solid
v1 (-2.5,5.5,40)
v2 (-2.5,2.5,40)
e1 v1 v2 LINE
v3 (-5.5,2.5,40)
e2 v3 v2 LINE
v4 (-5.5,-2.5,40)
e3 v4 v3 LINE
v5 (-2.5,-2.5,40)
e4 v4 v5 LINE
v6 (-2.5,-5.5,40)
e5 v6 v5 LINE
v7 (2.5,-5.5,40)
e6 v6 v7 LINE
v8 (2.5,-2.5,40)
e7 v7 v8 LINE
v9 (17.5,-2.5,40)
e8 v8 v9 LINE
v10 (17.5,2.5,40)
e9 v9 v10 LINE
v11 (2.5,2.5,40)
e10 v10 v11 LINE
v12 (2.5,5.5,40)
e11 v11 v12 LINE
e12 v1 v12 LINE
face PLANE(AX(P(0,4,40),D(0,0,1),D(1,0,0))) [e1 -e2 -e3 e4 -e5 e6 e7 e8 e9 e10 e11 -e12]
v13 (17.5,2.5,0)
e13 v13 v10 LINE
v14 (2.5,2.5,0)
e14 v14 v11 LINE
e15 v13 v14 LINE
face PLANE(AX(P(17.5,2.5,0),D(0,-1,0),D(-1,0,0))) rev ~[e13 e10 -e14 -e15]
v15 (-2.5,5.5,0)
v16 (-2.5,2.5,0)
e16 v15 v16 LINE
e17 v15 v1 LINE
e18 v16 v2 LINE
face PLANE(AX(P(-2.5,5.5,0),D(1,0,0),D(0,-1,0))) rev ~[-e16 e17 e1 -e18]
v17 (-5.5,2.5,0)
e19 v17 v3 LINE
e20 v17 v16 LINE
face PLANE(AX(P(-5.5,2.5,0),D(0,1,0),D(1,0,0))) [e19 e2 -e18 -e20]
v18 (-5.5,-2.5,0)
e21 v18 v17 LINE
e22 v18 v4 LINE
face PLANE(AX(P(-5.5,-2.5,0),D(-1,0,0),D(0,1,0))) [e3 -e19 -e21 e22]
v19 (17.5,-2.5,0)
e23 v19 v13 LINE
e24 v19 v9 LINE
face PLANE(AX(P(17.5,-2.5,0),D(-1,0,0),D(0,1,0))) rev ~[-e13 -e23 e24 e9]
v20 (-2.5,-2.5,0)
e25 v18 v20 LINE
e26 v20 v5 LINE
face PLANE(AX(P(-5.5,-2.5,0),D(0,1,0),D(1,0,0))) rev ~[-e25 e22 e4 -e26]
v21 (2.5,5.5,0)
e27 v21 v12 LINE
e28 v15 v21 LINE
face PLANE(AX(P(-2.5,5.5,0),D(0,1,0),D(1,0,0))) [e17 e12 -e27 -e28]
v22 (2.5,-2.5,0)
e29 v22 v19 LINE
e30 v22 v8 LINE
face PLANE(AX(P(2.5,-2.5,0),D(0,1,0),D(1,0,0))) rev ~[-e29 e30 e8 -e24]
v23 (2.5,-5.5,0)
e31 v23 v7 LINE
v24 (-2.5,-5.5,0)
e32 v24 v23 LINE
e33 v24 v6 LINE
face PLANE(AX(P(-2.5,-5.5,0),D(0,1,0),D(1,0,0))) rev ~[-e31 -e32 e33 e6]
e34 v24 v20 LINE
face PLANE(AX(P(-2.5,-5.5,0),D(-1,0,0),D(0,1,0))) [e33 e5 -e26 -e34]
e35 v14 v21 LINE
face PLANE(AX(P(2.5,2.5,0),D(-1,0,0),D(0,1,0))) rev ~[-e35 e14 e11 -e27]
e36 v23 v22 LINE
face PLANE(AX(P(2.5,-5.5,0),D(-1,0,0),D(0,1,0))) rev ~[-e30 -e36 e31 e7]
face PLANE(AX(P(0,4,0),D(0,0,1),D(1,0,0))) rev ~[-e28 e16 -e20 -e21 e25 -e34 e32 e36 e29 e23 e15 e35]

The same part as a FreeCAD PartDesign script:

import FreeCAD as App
import Part
import Sketcher
from FreeCAD import Vector

doc = App.newDocument("Part")
body = doc.addObject("PartDesign::Body", "Body")

sketch1 = doc.addObject("Sketcher::SketchObject", "Sketch")
body.addObject(sketch1)
sketch1.AttachmentSupport = (doc.XY_Plane, [""])
sketch1.MapMode = "FlatFace"
sketch1.addGeometry([
    Part.LineSegment(Vector(-2.5, 5.5, 0), Vector(-2.5, 2.5, 0)),
    Part.LineSegment(Vector(-2.5, 2.5, 0), Vector(-5.5, 2.5, 0)),
    Part.LineSegment(Vector(-5.5, 2.5, 0), Vector(-5.5, -2.5, 0)),
    Part.LineSegment(Vector(-5.5, -2.5, 0), Vector(-2.5, -2.5, 0)),
    Part.LineSegment(Vector(-2.5, -2.5, 0), Vector(-2.5, -5.5, 0)),
    Part.LineSegment(Vector(-2.5, -5.5, 0), Vector(2.5, -5.5, 0)),
    Part.LineSegment(Vector(2.5, -5.5, 0), Vector(2.5, -2.5, 0)),
    Part.LineSegment(Vector(2.5, -2.5, 0), Vector(17.5, -2.5, 0)),
    Part.LineSegment(Vector(17.5, -2.5, 0), Vector(17.5, 2.5, 0)),
    Part.LineSegment(Vector(17.5, 2.5, 0), Vector(2.5, 2.5, 0)),
    Part.LineSegment(Vector(2.5, 2.5, 0), Vector(2.5, 5.5, 0)),
    Part.LineSegment(Vector(2.5, 5.5, 0), Vector(-2.5, 5.5, 0)),
], False)
sketch1.addConstraint([
    Sketcher.Constraint("Coincident", 0, 2, 1, 1),
    Sketcher.Constraint("Coincident", 1, 2, 2, 1),
    Sketcher.Constraint("Coincident", 2, 2, 3, 1),
    Sketcher.Constraint("Coincident", 3, 2, 4, 1),
    Sketcher.Constraint("Coincident", 4, 2, 5, 1),
    Sketcher.Constraint("Coincident", 5, 2, 6, 1),
    Sketcher.Constraint("Coincident", 6, 2, 7, 1),
    Sketcher.Constraint("Coincident", 7, 2, 8, 1),
    Sketcher.Constraint("Coincident", 8, 2, 9, 1),
    Sketcher.Constraint("Coincident", 9, 2, 10, 1),
    Sketcher.Constraint("Coincident", 10, 2, 11, 1),
    Sketcher.Constraint("Coincident", 11, 2, 0, 1),
    Sketcher.Constraint("Vertical", 0),
    Sketcher.Constraint("Horizontal", 1),
    Sketcher.Constraint("Vertical", 2),
    Sketcher.Constraint("Horizontal", 3),
    Sketcher.Constraint("Vertical", 4),
    Sketcher.Constraint("Horizontal", 5),
    Sketcher.Constraint("Vertical", 6),
    Sketcher.Constraint("Horizontal", 7),
    Sketcher.Constraint("Vertical", 8),
    Sketcher.Constraint("Horizontal", 9),
    Sketcher.Constraint("Vertical", 10),
    Sketcher.Constraint("Horizontal", 11),
    Sketcher.Constraint("Symmetric", 0, 2, 6, 2, -1, 1),
    Sketcher.Constraint("Symmetric", 3, 2, 9, 2, -1, 1),
    Sketcher.Constraint("Symmetric", 3, 2, 6, 2, -2),
    Sketcher.Constraint("Equal", 3, 0),
    Sketcher.Constraint("Equal", 11, 2),
    Sketcher.Constraint("Equal", 0, 4),
    Sketcher.Constraint("DistanceX", 1, 2, 1, 1, 3.0),
    Sketcher.Constraint("DistanceX", 5, 1, 5, 2, 5.0),
    Sketcher.Constraint("DistanceX", 7, 1, 7, 2, 15.0),
])
pad1 = doc.addObject("PartDesign::Pad", "Pad")
body.addObject(pad1)
pad1.Profile = sketch1
pad1.Length = 40

doc.recompute()
